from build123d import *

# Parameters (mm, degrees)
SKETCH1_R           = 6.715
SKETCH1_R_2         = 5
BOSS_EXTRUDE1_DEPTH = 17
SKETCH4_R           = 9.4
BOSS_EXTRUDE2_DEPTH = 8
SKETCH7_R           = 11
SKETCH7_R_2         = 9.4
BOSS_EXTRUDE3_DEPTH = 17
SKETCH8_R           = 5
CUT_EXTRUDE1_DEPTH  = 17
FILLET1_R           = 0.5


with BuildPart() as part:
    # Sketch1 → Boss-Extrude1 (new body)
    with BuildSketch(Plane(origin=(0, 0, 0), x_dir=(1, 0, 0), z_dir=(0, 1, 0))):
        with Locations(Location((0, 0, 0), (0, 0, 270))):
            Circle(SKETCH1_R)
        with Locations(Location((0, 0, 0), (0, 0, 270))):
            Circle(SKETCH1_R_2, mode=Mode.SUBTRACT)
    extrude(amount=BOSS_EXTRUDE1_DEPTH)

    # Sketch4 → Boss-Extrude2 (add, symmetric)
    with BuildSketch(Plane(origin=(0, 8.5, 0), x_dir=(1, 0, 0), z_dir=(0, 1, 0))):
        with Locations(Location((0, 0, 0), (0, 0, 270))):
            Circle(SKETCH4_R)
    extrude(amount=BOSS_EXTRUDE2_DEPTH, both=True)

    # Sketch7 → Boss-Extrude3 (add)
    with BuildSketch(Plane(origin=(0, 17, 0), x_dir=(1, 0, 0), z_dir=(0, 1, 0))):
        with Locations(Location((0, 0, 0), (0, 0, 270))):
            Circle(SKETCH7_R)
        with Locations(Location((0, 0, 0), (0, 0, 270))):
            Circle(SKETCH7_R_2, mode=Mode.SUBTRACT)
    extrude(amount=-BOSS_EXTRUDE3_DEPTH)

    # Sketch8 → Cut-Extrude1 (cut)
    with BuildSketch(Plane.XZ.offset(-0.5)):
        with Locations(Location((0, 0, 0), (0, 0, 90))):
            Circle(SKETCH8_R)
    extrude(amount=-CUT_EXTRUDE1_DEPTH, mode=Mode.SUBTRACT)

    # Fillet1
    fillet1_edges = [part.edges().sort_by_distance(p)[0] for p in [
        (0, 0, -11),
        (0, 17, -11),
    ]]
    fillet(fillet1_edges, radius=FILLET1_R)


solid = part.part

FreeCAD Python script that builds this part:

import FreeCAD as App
import Part
import Sketcher
from FreeCAD import Vector
Q = App.Units.Quantity


def edges_at(feature, points):
    """Names of the edges that pass closest to the given points."""
    edges = feature.Shape.Edges
    near = lambda p: min(range(len(edges)), key=lambda i: edges[i].distToShape(Part.Vertex(*p))[0])
    return sorted({f"Edge{near(p) + 1}" for p in points})

doc = App.newDocument("Part")
body = doc.addObject("PartDesign::Body", "Body")

# Sketch on XZ plane
sketch1 = body.newObject("Sketcher::SketchObject", "Sketch")
sketch1.AttachmentSupport = (doc.getObject("XZ_Plane"), [""])
sketch1.MapMode = "FlatFace"
sketch1.addGeometry(Part.Circle(Vector(0, 0, 0), Vector(0, 0, 1), 6.715), False)
sketch1.addGeometry(Part.Circle(Vector(0, 0, 0), Vector(0, 0, 1), 5), False)
sketch1.addConstraint(Sketcher.Constraint("Coincident", 0, 3, -1, 1))
sketch1.addConstraint(Sketcher.Constraint("Coincident", 1, 3, -1, 1))
sketch1.addConstraint(Sketcher.Constraint("Diameter", 1, Q("10 mm")))
sketch1.addConstraint(Sketcher.Constraint("Diameter", 0, Q("13.43 mm")))
pad1 = body.newObject("PartDesign::Pad", "Pad")
pad1.Profile = sketch1
pad1.Length = 17
pad1.Reversed = True

# Sketch on XZ plane
sketch2 = body.newObject("Sketcher::SketchObject", "Sketch001")
sketch2.AttachmentSupport = (doc.getObject("XZ_Plane"), [""])
sketch2.MapMode = "FlatFace"
sketch2.AttachmentOffset = App.Placement(Vector(0, 0, -8.5), App.Rotation())
sketch2.addGeometry(Part.Circle(Vector(0, 0, 0), Vector(0, 0, 1), 9.4), False)
sketch2.addConstraint(Sketcher.Constraint("Coincident", 0, 3, -1, 1))
sketch2.addConstraint(Sketcher.Constraint("Diameter", 0, Q("18.8 mm")))
pad2 = body.newObject("PartDesign::Pad", "Pad001")
pad2.Profile = sketch2
pad2.Length = 16
pad2.Midplane = True

# Sketch on XZ plane
sketch3 = body.newObject("Sketcher::SketchObject", "Sketch002")
sketch3.AttachmentSupport = (doc.getObject("XZ_Plane"), [""])
sketch3.MapMode = "FlatFace"
sketch3.AttachmentOffset = App.Placement(Vector(0, 0, -17), App.Rotation())
sketch3.addGeometry(Part.Circle(Vector(0, 0, 0), Vector(0, 0, 1), 11), False)
sketch3.addGeometry(Part.Circle(Vector(0, 0, 0), Vector(0, 0, 1), 9.4), False)
sketch3.addConstraint(Sketcher.Constraint("Coincident", 0, 3, -1, 1))
sketch3.addConstraint(Sketcher.Constraint("Coincident", 1, 3, -1, 1))
sketch3.addConstraint(Sketcher.Constraint("Diameter", 0, Q("22 mm")))
sketch3.addConstraint(Sketcher.Constraint("Diameter", 1, Q("18.8 mm")))
pad3 = body.newObject("PartDesign::Pad", "Pad002")
pad3.Profile = sketch3
pad3.Length = 17

# Sketch on XZ plane
sketch4 = body.newObject("Sketcher::SketchObject", "Sketch003")
sketch4.AttachmentSupport = (doc.getObject("XZ_Plane"), [""])
sketch4.MapMode = "FlatFace"
sketch4.AttachmentOffset = App.Placement(Vector(0, 0, -0.5), App.Rotation())
sketch4.addGeometry(Part.Circle(Vector(0, 0, 0), Vector(0, 0, 1), 5), False)
sketch4.addConstraint(Sketcher.Constraint("Coincident", 0, 3, -1, 1))
sketch4.addConstraint(Sketcher.Constraint("Diameter", 0, Q("10 mm")))
pocket1 = body.newObject("PartDesign::Pocket", "Pocket")
pocket1.Profile = sketch4
pocket1.Length = 17
doc.recompute()

fillet = body.newObject("PartDesign::Fillet", "Fillet")
fillet.Base = (pocket1, edges_at(pocket1, [(0, 0, -11), (0, 17, -11)]))
fillet.Radius = 0.5

doc.recompute()
